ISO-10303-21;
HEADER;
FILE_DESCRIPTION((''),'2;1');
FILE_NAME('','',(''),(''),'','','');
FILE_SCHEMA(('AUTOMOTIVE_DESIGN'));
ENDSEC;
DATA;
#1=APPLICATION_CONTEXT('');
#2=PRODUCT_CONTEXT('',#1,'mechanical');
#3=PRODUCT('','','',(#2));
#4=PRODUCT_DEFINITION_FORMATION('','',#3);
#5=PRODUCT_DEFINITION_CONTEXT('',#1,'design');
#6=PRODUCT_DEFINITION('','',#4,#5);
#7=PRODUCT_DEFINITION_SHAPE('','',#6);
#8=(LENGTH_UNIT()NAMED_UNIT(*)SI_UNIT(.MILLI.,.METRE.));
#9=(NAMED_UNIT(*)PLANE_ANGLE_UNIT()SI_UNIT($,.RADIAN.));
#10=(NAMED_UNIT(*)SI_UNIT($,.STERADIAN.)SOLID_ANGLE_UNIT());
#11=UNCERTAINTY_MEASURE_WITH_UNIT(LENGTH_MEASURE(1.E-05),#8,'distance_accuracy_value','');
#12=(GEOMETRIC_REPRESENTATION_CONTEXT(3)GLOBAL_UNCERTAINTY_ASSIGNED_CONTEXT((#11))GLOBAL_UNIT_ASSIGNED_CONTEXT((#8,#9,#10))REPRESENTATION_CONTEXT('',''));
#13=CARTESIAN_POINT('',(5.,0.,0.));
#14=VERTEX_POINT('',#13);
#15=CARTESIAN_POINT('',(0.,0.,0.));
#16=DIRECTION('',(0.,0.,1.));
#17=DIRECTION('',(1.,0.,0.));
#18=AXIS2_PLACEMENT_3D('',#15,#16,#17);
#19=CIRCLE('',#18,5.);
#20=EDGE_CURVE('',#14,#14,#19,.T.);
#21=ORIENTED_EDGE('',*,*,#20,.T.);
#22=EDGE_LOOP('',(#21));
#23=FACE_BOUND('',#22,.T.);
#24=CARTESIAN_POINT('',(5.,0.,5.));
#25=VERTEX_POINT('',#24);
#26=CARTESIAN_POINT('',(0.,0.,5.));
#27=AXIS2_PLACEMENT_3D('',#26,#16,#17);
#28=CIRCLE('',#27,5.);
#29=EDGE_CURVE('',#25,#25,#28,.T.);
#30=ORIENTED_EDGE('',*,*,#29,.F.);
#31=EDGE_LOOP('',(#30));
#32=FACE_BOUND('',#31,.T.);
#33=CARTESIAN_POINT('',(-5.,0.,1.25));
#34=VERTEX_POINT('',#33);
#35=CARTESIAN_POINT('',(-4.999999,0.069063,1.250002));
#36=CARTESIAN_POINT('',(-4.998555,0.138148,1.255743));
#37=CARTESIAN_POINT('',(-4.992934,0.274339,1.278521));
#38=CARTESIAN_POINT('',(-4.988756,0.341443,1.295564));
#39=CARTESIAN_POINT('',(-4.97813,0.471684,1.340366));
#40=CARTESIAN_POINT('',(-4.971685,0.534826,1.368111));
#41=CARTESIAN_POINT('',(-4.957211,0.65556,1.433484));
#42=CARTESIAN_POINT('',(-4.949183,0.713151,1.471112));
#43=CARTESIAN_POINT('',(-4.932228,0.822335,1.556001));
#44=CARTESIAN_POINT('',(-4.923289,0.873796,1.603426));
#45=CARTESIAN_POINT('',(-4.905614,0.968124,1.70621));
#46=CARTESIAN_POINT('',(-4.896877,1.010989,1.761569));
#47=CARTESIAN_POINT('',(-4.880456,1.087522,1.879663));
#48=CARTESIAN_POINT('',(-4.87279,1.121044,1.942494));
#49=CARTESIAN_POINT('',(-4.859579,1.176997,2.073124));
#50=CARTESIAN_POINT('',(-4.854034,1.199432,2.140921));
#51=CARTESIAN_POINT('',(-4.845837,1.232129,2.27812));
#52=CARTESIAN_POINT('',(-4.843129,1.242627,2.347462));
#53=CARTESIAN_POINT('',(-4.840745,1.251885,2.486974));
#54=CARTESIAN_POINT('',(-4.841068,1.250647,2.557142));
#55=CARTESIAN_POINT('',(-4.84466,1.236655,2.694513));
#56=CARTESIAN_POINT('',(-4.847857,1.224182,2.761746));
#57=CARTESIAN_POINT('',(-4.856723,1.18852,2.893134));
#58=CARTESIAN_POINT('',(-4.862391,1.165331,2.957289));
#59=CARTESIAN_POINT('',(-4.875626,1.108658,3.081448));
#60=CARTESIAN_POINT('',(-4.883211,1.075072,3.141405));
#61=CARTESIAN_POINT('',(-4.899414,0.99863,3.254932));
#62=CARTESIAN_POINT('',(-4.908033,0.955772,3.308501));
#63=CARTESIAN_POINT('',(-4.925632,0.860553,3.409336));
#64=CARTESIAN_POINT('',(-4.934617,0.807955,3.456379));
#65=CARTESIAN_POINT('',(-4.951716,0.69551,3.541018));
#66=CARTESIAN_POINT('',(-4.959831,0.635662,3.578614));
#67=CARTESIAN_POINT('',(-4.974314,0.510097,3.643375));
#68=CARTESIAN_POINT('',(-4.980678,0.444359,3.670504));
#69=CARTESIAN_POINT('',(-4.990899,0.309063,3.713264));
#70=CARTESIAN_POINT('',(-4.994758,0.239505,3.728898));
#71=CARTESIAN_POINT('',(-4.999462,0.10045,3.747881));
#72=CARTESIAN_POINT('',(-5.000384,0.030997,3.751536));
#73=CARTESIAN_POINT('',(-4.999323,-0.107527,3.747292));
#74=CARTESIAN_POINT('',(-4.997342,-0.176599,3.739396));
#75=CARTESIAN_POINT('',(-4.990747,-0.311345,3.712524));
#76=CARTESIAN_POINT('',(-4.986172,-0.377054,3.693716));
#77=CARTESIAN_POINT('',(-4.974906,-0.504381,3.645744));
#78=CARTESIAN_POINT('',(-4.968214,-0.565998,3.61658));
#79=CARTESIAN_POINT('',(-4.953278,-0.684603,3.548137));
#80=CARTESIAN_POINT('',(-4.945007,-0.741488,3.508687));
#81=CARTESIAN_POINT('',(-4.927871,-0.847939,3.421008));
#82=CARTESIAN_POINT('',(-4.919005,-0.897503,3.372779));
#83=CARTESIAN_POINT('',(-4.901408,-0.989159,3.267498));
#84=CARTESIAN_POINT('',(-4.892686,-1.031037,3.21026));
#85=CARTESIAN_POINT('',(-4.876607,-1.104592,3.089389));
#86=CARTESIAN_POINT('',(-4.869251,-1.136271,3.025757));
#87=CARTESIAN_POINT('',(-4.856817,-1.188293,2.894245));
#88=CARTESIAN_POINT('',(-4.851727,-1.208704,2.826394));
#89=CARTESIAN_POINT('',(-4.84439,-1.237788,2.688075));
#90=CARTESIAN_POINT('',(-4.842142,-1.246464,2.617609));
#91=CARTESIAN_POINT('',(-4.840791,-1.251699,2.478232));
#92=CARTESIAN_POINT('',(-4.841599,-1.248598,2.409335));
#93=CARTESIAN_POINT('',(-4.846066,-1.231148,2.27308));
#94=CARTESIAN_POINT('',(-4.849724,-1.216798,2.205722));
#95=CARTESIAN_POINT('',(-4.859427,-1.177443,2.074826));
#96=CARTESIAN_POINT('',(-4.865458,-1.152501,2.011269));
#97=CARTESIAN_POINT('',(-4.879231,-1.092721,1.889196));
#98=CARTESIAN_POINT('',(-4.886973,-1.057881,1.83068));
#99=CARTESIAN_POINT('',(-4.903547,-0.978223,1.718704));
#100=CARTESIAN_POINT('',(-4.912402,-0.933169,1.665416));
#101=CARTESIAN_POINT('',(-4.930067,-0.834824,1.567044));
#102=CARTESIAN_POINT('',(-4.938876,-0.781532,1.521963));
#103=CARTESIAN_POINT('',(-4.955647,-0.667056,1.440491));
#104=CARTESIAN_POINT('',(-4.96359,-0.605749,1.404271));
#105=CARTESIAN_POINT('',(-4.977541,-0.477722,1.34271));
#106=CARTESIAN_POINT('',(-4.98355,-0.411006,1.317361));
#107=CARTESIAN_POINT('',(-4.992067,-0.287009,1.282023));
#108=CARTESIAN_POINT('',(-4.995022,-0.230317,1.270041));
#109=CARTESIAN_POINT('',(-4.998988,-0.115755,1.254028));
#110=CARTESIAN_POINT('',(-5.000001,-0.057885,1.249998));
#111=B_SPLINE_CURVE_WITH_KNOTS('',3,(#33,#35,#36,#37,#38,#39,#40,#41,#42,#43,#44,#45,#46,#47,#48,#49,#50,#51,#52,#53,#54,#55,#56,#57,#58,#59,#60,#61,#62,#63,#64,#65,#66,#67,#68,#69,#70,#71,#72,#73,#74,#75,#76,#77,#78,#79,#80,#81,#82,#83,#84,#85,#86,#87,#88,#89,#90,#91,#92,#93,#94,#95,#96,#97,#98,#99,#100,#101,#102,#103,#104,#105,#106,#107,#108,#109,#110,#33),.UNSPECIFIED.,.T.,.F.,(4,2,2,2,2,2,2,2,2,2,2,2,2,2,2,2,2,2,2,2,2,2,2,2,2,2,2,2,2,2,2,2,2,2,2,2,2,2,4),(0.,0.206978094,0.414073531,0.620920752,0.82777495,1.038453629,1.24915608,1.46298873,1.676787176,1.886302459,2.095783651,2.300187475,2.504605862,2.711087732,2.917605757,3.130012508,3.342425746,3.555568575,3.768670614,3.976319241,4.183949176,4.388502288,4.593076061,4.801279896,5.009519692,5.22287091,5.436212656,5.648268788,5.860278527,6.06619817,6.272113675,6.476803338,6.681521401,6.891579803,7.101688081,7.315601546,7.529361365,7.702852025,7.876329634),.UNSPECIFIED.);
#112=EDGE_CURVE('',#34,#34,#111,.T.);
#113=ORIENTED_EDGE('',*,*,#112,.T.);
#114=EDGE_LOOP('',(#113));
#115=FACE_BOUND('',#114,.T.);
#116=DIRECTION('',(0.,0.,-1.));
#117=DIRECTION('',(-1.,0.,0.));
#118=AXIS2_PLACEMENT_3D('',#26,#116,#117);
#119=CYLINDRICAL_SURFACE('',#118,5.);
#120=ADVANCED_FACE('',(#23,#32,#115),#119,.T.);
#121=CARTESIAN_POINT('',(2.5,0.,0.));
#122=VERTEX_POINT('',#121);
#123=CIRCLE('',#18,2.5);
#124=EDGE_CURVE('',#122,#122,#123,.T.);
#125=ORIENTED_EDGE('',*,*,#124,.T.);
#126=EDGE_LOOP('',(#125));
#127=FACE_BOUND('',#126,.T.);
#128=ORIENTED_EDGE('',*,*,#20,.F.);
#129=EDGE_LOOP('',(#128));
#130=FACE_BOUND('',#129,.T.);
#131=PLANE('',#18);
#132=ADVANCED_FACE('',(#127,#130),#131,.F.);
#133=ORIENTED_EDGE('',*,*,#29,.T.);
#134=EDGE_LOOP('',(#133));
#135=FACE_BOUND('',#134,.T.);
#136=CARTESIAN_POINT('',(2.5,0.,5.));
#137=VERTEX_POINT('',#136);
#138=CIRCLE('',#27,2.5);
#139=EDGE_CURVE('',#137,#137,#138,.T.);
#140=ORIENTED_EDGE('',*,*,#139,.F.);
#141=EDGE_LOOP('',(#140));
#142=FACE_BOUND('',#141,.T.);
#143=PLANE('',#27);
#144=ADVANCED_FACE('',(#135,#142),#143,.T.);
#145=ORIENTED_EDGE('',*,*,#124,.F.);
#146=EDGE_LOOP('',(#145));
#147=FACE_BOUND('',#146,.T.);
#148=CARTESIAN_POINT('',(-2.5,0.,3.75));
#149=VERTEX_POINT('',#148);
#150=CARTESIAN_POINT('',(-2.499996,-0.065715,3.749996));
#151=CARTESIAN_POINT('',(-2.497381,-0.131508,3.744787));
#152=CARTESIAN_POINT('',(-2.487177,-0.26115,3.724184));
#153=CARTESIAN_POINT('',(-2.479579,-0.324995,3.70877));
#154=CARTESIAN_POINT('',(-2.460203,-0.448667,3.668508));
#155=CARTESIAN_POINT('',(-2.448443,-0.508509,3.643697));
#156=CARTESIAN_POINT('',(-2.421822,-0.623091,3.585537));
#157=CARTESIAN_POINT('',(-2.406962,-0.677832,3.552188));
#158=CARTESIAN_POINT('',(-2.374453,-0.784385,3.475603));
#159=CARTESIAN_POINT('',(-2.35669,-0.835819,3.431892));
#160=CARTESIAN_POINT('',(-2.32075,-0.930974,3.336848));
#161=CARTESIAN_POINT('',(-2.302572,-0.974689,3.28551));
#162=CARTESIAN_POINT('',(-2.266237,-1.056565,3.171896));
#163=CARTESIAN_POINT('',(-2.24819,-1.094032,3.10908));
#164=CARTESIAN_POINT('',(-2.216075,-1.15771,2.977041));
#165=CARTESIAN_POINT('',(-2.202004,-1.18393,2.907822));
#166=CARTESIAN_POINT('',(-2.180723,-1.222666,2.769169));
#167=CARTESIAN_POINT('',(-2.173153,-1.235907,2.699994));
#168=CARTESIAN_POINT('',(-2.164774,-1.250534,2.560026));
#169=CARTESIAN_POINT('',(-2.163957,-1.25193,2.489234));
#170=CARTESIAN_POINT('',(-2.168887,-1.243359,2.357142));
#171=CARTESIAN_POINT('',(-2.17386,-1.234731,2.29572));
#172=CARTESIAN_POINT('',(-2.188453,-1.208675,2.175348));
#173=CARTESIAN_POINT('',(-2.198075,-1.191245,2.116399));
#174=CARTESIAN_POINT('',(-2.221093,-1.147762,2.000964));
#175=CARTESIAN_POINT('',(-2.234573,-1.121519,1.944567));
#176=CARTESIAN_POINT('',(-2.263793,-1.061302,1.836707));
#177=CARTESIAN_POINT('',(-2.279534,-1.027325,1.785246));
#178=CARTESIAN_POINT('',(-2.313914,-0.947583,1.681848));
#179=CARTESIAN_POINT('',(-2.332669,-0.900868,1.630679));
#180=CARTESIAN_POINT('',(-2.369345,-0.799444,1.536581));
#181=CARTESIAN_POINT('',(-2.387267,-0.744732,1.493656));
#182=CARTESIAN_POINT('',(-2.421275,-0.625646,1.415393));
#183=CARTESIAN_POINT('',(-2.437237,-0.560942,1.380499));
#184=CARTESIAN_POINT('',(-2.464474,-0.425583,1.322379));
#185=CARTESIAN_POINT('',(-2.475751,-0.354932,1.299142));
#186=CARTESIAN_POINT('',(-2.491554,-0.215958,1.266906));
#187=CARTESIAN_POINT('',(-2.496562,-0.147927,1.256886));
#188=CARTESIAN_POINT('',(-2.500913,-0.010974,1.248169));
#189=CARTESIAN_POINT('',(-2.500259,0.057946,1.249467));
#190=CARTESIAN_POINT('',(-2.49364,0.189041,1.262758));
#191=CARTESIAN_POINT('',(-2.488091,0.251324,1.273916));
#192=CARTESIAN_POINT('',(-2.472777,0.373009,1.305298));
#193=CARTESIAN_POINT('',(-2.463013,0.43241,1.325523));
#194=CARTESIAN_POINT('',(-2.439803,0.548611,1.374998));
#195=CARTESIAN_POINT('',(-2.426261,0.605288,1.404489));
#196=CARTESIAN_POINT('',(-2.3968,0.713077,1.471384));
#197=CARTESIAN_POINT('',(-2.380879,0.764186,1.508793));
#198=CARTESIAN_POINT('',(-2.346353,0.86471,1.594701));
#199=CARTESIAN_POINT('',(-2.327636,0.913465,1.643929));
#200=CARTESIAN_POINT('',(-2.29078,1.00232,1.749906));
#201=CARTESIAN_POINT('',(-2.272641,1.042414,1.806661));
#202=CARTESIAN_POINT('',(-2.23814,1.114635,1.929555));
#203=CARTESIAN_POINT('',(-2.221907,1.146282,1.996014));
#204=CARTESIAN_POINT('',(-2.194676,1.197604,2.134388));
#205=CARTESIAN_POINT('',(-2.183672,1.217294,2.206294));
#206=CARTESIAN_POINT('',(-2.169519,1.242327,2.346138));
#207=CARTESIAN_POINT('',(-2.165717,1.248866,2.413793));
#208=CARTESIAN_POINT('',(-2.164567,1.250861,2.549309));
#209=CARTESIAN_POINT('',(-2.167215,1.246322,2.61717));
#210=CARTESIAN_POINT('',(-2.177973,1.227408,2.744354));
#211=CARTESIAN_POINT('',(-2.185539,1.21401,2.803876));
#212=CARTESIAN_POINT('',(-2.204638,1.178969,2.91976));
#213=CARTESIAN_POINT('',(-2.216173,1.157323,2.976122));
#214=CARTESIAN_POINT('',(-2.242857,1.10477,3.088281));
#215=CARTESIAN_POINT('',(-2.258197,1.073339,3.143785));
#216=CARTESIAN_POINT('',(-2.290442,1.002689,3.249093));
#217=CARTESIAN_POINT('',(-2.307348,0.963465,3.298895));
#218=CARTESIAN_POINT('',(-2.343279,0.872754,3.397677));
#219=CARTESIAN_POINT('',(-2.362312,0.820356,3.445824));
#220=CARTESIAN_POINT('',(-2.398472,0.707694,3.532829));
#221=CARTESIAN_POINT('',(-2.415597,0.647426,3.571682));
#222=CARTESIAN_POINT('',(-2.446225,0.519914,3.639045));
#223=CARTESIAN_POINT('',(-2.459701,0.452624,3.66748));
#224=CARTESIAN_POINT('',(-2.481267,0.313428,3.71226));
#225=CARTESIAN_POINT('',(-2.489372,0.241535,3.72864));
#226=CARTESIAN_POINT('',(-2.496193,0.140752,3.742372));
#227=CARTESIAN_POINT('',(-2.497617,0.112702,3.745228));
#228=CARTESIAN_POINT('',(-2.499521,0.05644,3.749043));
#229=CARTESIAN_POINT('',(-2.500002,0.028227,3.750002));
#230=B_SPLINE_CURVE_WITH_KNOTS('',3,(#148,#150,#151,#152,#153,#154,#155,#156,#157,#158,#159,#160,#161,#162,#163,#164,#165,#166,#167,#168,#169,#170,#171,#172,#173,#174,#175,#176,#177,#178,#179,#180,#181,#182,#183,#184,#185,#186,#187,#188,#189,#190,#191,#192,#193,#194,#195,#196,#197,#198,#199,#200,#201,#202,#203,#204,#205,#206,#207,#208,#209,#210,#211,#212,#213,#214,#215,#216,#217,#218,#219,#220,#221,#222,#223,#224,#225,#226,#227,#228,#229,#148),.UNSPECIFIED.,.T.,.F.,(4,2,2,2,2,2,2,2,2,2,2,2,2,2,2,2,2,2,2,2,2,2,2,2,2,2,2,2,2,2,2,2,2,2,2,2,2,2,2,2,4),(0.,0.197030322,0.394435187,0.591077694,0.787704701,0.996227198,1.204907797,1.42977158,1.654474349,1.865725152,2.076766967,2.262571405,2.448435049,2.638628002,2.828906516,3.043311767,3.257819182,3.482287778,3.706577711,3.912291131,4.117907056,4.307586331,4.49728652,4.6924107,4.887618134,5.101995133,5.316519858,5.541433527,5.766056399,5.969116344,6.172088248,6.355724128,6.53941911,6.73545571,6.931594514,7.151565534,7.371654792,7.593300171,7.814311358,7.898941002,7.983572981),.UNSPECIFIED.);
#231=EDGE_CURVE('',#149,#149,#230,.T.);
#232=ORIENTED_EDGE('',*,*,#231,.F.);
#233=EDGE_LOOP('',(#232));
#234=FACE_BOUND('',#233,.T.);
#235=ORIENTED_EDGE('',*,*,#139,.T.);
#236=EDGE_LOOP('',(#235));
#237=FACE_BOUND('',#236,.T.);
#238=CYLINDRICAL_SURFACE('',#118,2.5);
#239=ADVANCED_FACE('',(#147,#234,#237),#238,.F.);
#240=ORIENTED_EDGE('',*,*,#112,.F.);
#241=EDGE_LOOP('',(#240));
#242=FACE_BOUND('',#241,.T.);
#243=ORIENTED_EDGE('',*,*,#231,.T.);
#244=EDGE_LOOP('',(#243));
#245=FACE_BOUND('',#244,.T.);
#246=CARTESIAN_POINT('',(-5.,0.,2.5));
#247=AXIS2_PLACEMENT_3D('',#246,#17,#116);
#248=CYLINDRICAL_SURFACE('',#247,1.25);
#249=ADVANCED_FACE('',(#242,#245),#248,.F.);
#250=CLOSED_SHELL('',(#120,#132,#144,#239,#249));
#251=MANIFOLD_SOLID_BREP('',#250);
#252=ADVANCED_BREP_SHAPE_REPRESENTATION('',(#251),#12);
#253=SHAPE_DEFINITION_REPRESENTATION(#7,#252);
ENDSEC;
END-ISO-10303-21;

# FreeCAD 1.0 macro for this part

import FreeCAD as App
import Part
import Sketcher

V = App.Vector

doc = App.newDocument("Part")
body = doc.addObject("PartDesign::Body", "Body")

# Sketch on XY plane
sketch1 = doc.addObject("Sketcher::SketchObject", "Sketch")
body.addObject(sketch1)
sketch1.AttachmentSupport = (doc.XY_Plane, [""])
sketch1.MapMode = "FlatFace"
sketch1.addGeometry(Part.Circle(V(0, 0, 0), V(0, 0, 1), 5), False)
sketch1.addGeometry(Part.Circle(V(0, 0, 0), V(0, 0, 1), 2.5), False)
sketch1.addConstraint(Sketcher.Constraint("Coincident", 0, 3, -1, 1))
sketch1.addConstraint(Sketcher.Constraint("Coincident", 1, 3, -1, 1))
sketch1.addConstraint(Sketcher.Constraint("Diameter", 0, 10.0))
sketch1.addConstraint(Sketcher.Constraint("Diameter", 1, 5.0))
pad1 = doc.addObject("PartDesign::Pad", "Pad")
body.addObject(pad1)
pad1.Profile = sketch1
pad1.Length = 5

# Sketch on YZ plane
sketch2 = doc.addObject("Sketcher::SketchObject", "Sketch001")
body.addObject(sketch2)
sketch2.AttachmentSupport = (doc.YZ_Plane, [""])
sketch2.MapMode = "FlatFace"
sketch2.addGeometry(Part.Circle(V(0, 2.5, 0), V(0, 0, 1), 1.25), False)
sketch2.addConstraint(Sketcher.Constraint("PointOnObject", 0, 3, -2))
sketch2.addConstraint(Sketcher.Constraint("Diameter", 0, 2.5))
sketch2.addConstraint(Sketcher.Constraint("DistanceY", -1, 1, 0, 3, 2.5))
pocket1 = doc.addObject("PartDesign::Pocket", "Pocket")
body.addObject(pocket1)
pocket1.Profile = sketch2
pocket1.Type = "ThroughAll"

doc.recompute()
